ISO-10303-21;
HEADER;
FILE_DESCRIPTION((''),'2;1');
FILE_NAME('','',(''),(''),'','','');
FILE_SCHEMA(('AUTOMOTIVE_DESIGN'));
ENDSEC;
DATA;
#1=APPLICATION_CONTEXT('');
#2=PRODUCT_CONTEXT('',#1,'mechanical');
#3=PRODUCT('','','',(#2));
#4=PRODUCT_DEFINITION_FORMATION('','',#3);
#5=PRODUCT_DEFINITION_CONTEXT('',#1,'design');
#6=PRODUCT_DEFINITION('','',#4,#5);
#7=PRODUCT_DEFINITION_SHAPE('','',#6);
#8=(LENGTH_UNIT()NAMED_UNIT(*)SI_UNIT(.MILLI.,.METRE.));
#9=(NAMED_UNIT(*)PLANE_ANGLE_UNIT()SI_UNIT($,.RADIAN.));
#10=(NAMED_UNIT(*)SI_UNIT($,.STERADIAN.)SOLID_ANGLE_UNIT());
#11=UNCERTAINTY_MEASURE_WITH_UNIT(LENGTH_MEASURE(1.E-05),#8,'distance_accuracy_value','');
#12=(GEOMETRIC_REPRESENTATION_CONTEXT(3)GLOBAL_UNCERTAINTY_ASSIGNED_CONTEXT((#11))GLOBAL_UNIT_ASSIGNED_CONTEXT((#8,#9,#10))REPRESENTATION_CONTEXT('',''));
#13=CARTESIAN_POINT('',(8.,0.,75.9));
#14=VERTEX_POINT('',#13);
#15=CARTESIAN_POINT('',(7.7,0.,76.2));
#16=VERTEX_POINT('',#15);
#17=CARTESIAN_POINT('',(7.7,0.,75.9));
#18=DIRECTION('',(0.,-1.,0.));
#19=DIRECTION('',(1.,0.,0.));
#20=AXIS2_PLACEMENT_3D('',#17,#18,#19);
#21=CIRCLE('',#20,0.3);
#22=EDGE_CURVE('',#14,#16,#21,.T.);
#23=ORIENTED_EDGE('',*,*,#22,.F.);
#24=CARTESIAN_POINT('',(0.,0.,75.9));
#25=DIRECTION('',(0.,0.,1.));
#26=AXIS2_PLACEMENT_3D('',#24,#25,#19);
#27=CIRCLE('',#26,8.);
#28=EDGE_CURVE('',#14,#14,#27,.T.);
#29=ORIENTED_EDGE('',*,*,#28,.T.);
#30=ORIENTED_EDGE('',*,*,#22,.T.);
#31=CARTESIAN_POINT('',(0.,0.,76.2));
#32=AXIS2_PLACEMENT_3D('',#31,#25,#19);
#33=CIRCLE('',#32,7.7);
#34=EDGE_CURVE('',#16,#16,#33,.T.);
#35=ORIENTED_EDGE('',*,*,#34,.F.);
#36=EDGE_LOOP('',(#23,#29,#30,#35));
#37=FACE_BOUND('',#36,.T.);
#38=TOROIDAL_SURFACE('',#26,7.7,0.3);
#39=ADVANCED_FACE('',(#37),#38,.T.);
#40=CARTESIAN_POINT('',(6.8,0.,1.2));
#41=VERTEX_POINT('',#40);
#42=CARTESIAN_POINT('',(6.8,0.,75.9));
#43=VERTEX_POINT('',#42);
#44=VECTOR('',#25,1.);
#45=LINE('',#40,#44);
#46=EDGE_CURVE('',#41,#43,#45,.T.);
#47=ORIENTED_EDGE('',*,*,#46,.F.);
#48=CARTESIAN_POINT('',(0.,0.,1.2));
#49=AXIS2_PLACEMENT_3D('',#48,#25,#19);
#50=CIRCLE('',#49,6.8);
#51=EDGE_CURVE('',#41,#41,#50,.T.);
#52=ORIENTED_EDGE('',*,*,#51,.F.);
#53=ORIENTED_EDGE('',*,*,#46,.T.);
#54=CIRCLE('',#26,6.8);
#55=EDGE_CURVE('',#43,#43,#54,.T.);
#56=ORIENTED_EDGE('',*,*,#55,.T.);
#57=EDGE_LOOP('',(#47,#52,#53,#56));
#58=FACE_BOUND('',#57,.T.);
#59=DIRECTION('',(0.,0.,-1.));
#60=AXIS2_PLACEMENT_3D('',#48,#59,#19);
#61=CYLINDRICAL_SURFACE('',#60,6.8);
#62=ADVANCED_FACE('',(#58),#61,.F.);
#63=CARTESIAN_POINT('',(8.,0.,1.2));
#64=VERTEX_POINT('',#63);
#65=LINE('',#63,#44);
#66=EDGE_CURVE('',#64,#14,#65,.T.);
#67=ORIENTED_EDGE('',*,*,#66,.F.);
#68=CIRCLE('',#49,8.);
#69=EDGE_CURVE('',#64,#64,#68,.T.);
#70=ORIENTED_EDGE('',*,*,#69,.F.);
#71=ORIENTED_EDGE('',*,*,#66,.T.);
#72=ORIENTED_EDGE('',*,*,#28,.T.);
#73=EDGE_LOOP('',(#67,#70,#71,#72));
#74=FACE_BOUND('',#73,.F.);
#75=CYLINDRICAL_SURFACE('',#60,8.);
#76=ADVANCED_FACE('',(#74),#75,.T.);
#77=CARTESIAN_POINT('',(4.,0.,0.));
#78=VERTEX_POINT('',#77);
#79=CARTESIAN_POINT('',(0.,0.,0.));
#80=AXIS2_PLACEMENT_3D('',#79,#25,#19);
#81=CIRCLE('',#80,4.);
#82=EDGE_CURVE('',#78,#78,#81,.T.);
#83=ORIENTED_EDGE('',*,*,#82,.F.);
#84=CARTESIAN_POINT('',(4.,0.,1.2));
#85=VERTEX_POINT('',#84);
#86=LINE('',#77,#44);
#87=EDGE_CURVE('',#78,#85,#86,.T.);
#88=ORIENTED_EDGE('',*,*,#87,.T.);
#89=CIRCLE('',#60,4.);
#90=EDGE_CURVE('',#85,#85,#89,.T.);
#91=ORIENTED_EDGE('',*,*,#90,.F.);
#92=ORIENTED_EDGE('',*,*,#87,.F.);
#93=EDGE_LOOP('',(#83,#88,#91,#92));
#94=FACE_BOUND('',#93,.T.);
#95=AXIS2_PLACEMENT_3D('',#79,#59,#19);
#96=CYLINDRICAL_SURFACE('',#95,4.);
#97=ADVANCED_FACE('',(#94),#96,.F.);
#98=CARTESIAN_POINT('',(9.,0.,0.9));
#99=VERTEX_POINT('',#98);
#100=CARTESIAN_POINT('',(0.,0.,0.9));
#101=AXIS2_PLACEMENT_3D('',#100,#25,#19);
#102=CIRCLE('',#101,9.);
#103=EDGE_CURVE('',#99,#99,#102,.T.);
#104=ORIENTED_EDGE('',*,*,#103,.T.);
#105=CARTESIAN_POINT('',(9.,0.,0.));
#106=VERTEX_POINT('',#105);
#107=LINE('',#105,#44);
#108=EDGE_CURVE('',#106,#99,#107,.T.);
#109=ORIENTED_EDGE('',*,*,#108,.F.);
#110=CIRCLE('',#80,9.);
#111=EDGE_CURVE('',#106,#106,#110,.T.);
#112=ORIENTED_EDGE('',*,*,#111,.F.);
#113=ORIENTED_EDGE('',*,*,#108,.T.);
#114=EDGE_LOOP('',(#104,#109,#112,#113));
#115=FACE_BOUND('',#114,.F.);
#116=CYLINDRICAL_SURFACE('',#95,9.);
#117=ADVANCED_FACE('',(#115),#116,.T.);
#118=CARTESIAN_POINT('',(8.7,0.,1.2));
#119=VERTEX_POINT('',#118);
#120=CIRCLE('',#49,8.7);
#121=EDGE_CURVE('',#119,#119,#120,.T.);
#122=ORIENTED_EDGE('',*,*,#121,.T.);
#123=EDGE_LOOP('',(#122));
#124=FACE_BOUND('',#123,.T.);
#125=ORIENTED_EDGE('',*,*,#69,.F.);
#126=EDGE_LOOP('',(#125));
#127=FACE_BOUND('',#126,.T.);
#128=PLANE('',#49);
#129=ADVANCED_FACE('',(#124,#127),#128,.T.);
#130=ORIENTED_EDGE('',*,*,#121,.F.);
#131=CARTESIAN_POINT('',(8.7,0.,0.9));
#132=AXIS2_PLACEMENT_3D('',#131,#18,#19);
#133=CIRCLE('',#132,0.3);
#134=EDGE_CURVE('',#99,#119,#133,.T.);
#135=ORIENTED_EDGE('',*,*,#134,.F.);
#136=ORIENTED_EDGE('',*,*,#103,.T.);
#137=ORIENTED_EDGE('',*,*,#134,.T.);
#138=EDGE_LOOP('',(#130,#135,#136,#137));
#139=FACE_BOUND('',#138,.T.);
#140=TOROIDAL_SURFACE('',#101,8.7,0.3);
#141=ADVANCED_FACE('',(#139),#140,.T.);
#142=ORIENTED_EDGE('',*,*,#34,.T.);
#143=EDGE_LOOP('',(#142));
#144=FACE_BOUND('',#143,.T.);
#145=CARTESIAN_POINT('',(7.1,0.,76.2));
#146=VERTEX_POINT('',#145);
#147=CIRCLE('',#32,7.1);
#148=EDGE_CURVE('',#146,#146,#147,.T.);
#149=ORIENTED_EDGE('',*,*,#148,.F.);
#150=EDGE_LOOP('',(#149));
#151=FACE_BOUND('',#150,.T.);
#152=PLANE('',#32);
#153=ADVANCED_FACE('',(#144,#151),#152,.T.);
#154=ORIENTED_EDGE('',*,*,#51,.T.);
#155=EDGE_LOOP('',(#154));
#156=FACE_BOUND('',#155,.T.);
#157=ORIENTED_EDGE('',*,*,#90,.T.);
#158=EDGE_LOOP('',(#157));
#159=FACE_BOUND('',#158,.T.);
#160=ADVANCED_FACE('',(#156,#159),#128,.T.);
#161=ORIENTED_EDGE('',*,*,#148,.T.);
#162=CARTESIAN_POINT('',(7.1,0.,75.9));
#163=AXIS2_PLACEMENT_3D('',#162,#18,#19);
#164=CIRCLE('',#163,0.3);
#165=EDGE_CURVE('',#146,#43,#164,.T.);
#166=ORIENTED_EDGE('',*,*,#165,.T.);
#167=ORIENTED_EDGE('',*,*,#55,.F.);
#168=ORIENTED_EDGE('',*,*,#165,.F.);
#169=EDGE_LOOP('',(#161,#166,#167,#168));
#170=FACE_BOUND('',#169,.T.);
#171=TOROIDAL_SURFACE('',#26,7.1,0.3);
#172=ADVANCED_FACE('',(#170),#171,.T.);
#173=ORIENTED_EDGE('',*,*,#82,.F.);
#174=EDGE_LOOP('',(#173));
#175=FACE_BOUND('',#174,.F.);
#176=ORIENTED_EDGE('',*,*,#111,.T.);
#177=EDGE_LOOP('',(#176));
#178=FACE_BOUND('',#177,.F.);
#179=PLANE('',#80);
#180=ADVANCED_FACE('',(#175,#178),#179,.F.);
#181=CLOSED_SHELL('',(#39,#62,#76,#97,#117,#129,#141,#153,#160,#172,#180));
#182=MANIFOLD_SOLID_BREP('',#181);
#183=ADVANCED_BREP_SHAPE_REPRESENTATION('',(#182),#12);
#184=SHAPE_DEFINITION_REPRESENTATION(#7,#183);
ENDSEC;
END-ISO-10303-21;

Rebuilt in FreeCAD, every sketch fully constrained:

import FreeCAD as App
import Part
import Sketcher
from FreeCAD import Vector


def edges_at(feature, points):
    """Names of the edges that pass closest to the given points."""
    edges = feature.Shape.Edges
    near = lambda p: min(range(len(edges)), key=lambda i: edges[i].distToShape(Part.Vertex(*p))[0])
    return sorted({f"Edge{near(p) + 1}" for p in points})

doc = App.newDocument("Part")
body = doc.addObject("PartDesign::Body", "Body")

# Sketch on XY plane
sketch1 = doc.addObject("Sketcher::SketchObject", "Sketch")
body.addObject(sketch1)
sketch1.AttachmentSupport = (doc.XY_Plane, [""])
sketch1.MapMode = "FlatFace"
sketch1.addGeometry(Part.Circle(Vector(0, 0, 0), Vector(0, 0, 1), 9), False)
sketch1.addConstraint(Sketcher.Constraint("Coincident", 0, 3, -1, 1))
sketch1.addConstraint(Sketcher.Constraint("Diameter", 0, 18.0))
pad1 = doc.addObject("PartDesign::Pad", "Pad")
body.addObject(pad1)
pad1.Profile = sketch1
pad1.Length = 1.2

# Sketch on XY plane
sketch2 = doc.addObject("Sketcher::SketchObject", "Sketch001")
body.addObject(sketch2)
sketch2.AttachmentSupport = (doc.XY_Plane, [""])
sketch2.MapMode = "FlatFace"
sketch2.AttachmentOffset = App.Placement(Vector(0, 0, 1.2), App.Rotation())
sketch2.addGeometry(Part.Circle(Vector(0, 0, 0), Vector(0, 0, 1), 8), False)
sketch2.addConstraint(Sketcher.Constraint("Coincident", 0, 3, -1, 1))
sketch2.addConstraint(Sketcher.Constraint("Diameter", 0, 16.0))
pad2 = doc.addObject("PartDesign::Pad", "Pad001")
body.addObject(pad2)
pad2.Profile = sketch2
pad2.Length = 75

# Sketch on XY plane
sketch3 = doc.addObject("Sketcher::SketchObject", "Sketch002")
body.addObject(sketch3)
sketch3.AttachmentSupport = (doc.XY_Plane, [""])
sketch3.MapMode = "FlatFace"
sketch3.addGeometry(Part.Circle(Vector(0, 0, 0), Vector(0, 0, 1), 4), False)
sketch3.addConstraint(Sketcher.Constraint("Coincident", 0, 3, -1, 1))
sketch3.addConstraint(Sketcher.Constraint("Diameter", 0, 8.0))
pocket1 = doc.addObject("PartDesign::Pocket", "Pocket")
body.addObject(pocket1)
pocket1.Profile = sketch3
pocket1.Length = 76.2
pocket1.Reversed = True

# Sketch on XY plane
sketch4 = doc.addObject("Sketcher::SketchObject", "Sketch003")
body.addObject(sketch4)
sketch4.AttachmentSupport = (doc.XY_Plane, [""])
sketch4.MapMode = "FlatFace"
sketch4.AttachmentOffset = App.Placement(Vector(0, 0, 1.2), App.Rotation())
sketch4.addGeometry(Part.Circle(Vector(0, 0, 0), Vector(0, 0, 1), 7), False)
sketch4.addConstraint(Sketcher.Constraint("Coincident", 0, 3, -1, 1))
sketch4.addConstraint(Sketcher.Constraint("Diameter", 0, 13.6))
pocket2 = doc.addObject("PartDesign::Pocket", "Pocket001")
body.addObject(pocket2)
pocket2.Profile = sketch4
pocket2.Length = 75
pocket2.Reversed = True
doc.recompute()

fillet = doc.addObject("PartDesign::Fillet", "Fillet")
body.addObject(fillet)
fillet.Base = (pocket2, edges_at(pocket2, [(-9, 0, 1.2), (-8, 0, 76.2), (-6.8, 0, 76.2)]))
fillet.Radius = 0.3

doc.recompute()
